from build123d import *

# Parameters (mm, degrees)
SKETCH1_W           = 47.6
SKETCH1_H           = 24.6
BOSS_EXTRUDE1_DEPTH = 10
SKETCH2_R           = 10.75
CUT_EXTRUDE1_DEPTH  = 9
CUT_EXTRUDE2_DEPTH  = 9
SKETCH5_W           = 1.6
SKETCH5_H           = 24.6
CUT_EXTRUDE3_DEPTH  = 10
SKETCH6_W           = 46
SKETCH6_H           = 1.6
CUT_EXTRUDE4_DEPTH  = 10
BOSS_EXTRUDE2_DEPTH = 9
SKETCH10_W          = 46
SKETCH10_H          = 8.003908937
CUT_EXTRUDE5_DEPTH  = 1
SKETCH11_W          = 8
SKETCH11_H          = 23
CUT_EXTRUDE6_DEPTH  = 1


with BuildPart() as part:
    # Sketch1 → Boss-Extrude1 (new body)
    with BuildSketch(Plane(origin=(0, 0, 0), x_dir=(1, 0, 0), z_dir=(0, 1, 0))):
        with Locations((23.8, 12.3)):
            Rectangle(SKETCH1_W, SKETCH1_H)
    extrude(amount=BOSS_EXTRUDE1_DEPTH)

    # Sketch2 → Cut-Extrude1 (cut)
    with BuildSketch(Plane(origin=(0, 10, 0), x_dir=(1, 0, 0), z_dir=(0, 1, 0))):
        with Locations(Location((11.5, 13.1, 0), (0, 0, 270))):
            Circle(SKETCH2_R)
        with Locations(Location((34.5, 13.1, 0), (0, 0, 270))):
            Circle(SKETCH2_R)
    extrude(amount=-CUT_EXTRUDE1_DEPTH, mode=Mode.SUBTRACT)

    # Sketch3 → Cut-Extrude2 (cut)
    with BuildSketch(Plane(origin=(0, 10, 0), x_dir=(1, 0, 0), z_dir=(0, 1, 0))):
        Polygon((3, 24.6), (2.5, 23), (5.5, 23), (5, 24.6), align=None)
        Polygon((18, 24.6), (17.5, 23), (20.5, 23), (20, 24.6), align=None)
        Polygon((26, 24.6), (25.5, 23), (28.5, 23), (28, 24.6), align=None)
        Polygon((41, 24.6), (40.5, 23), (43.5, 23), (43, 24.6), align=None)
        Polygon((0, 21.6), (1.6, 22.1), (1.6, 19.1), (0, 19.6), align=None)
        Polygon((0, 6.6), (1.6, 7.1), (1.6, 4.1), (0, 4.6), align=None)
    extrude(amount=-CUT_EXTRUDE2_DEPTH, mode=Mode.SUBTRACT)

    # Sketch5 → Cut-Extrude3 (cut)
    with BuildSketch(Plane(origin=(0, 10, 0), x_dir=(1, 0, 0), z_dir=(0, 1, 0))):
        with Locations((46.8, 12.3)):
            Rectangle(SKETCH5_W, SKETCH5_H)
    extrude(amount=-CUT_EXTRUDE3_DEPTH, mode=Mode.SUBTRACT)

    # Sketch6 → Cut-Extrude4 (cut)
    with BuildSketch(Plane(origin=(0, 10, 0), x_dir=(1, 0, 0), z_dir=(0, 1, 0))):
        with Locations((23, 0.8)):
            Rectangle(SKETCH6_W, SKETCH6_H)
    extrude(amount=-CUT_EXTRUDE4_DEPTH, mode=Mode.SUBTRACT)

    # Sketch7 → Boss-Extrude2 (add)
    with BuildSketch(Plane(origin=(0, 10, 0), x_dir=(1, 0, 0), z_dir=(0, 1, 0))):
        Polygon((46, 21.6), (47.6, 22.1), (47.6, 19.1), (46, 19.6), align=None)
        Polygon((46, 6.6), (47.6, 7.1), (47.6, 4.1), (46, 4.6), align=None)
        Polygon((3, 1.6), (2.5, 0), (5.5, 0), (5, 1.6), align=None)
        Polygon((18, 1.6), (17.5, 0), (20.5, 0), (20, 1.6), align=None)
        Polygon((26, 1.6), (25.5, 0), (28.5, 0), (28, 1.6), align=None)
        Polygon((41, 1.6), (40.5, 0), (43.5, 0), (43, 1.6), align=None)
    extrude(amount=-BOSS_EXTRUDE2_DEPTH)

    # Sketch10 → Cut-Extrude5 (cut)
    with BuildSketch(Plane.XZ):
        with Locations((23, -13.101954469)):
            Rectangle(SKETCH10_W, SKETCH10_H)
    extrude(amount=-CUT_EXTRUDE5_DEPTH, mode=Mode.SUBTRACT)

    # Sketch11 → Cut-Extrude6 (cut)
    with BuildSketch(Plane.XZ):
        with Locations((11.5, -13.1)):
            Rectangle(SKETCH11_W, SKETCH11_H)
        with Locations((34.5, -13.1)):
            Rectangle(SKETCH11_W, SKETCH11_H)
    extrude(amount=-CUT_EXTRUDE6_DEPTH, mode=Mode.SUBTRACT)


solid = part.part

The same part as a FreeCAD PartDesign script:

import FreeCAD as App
import Part
import Sketcher

V = App.Vector
Q = App.Units.Quantity

doc = App.newDocument("Part")
body = doc.addObject("PartDesign::Body", "Body")

# Sketch on XZ plane
sketch1 = body.newObject("Sketcher::SketchObject", "Sketch")
sketch1.AttachmentSupport = (doc.getObject("XZ_Plane"), [""])
sketch1.MapMode = "FlatFace"
sketch1.addGeometry([
    Part.LineSegment(V(0, -25, 0), V(0, 0, 0)),
    Part.LineSegment(V(0, 0, 0), V(48, 0, 0)),
    Part.LineSegment(V(48, 0, 0), V(48, -25, 0)),
    Part.LineSegment(V(48, -25, 0), V(0, -25, 0)),
], False)
sketch1.addConstraint([
    Sketcher.Constraint("Coincident", 0, 2, 1, 1),
    Sketcher.Constraint("Coincident", 1, 2, 2, 1),
    Sketcher.Constraint("Coincident", 2, 2, 3, 1),
    Sketcher.Constraint("Coincident", 3, 2, 0, 1),
    Sketcher.Constraint("Vertical", 0),
    Sketcher.Constraint("Horizontal", 1),
    Sketcher.Constraint("Vertical", 2),
    Sketcher.Constraint("Horizontal", 3),
    Sketcher.Constraint("Coincident", 0, 2, -1, 1),
    Sketcher.Constraint("DistanceX", 1, 1, 1, 2, Q("47.6 mm")),
    Sketcher.Constraint("DistanceY", 0, 1, 0, 2, Q("24.6 mm")),
])
pad1 = body.newObject("PartDesign::Pad", "Pad")
pad1.Profile = sketch1
pad1.Length = 10
pad1.Reversed = True

# Sketch on XZ plane
sketch2 = body.newObject("Sketcher::SketchObject", "Sketch001")
sketch2.AttachmentSupport = (doc.getObject("XZ_Plane"), [""])
sketch2.MapMode = "FlatFace"
sketch2.AttachmentOffset = App.Placement(V(0, 0, -10), App.Rotation())
sketch2.addGeometry([
    Part.Circle(V(12, -13, 0), V(0, 0, 1), 11),
    Part.Circle(V(34, -13, 0), V(0, 0, 1), 11),
], False)
sketch2.addConstraint([
    Sketcher.Constraint("Equal", 0, 1),
    Sketcher.Constraint("Horizontal", 0, 3, 1, 3),
    Sketcher.Constraint("Diameter", 0, Q("21.5 mm")),
    Sketcher.Constraint("DistanceX", 0, 3, 1, 3, Q("23 mm")),
    Sketcher.Constraint("DistanceX", -1, 1, 0, 3, Q("11.5 mm")),
    Sketcher.Constraint("DistanceY", 0, 3, -1, 1, Q("13.1 mm")),
])
pocket1 = body.newObject("PartDesign::Pocket", "Pocket")
pocket1.Profile = sketch2
pocket1.Length = 9
pocket1.Reversed = True

# Sketch on XZ plane
sketch3 = body.newObject("Sketcher::SketchObject", "Sketch002")
sketch3.AttachmentSupport = (doc.getObject("XZ_Plane"), [""])
sketch3.MapMode = "FlatFace"
sketch3.AttachmentOffset = App.Placement(V(0, 0, -10), App.Rotation())
sketch3.addGeometry([
    Part.LineSegment(V(3, -24.6, 0), V(2.5, -23, 0)),  # 0
    Part.LineSegment(V(2.5, -23, 0), V(5.5, -23, 0)),  # 1
    Part.LineSegment(V(5.5, -23, 0), V(5, -24.6, 0)),  # 2
    Part.LineSegment(V(5, -24.6, 0), V(3, -24.6, 0)),  # 3
    Part.LineSegment(V(18, -24.6, 0), V(17.5, -23, 0)),  # 4
    Part.LineSegment(V(17.5, -23, 0), V(20.5, -23, 0)),  # 5
    Part.LineSegment(V(20.5, -23, 0), V(20, -24.6, 0)),  # 6
    Part.LineSegment(V(20, -24.6, 0), V(18, -24.6, 0)),  # 7
    Part.LineSegment(V(26, -24.6, 0), V(25.5, -23, 0)),  # 8
    Part.LineSegment(V(25.5, -23, 0), V(28.5, -23, 0)),  # 9
    Part.LineSegment(V(28.5, -23, 0), V(28, -24.6, 0)),  # 10
    Part.LineSegment(V(28, -24.6, 0), V(26, -24.6, 0)),  # 11
    Part.LineSegment(V(41, -24.6, 0), V(40.5, -23, 0)),  # 12
    Part.LineSegment(V(40.5, -23, 0), V(43.5, -23, 0)),  # 13
    Part.LineSegment(V(43.5, -23, 0), V(43, -24.6, 0)),  # 14
    Part.LineSegment(V(43, -24.6, 0), V(41, -24.6, 0)),  # 15
    Part.LineSegment(V(1.6, -22.1, 0), V(0, -21.6, 0)),  # 16
    Part.LineSegment(V(0, -21.6, 0), V(0, -19.6, 0)),  # 17
    Part.LineSegment(V(0, -19.6, 0), V(1.6, -19.1, 0)),  # 18
    Part.LineSegment(V(1.6, -19.1, 0), V(1.6, -22.1, 0)),  # 19
    Part.LineSegment(V(1.6, -7.1, 0), V(0, -6.6, 0)),  # 20
    Part.LineSegment(V(0, -6.6, 0), V(0, -4.6, 0)),  # 21
    Part.LineSegment(V(0, -4.6, 0), V(1.6, -4.1, 0)),  # 22
    Part.LineSegment(V(1.6, -4.1, 0), V(1.6, -7.1, 0)),  # 23
], False)
sketch3.addConstraint([
    Sketcher.Constraint("Coincident", 0, 2, 1, 1),
    Sketcher.Constraint("Coincident", 1, 2, 2, 1),
    Sketcher.Constraint("Coincident", 2, 2, 3, 1),
    Sketcher.Constraint("Coincident", 3, 2, 0, 1),
    Sketcher.Constraint("Coincident", 4, 2, 5, 1),
    Sketcher.Constraint("Coincident", 5, 2, 6, 1),
    Sketcher.Constraint("Coincident", 6, 2, 7, 1),
    Sketcher.Constraint("Coincident", 7, 2, 4, 1),
    Sketcher.Constraint("Coincident", 8, 2, 9, 1),
    Sketcher.Constraint("Coincident", 9, 2, 10, 1),
    Sketcher.Constraint("Coincident", 10, 2, 11, 1),
    Sketcher.Constraint("Coincident", 11, 2, 8, 1),
    Sketcher.Constraint("Coincident", 12, 2, 13, 1),
    Sketcher.Constraint("Coincident", 13, 2, 14, 1),
    Sketcher.Constraint("Coincident", 14, 2, 15, 1),
    Sketcher.Constraint("Coincident", 15, 2, 12, 1),
    Sketcher.Constraint("Coincident", 16, 2, 17, 1),
    Sketcher.Constraint("Coincident", 17, 2, 18, 1),
    Sketcher.Constraint("Coincident", 18, 2, 19, 1),
    Sketcher.Constraint("Coincident", 19, 2, 16, 1),
    Sketcher.Constraint("Coincident", 20, 2, 21, 1),
    Sketcher.Constraint("Coincident", 21, 2, 22, 1),
    Sketcher.Constraint("Coincident", 22, 2, 23, 1),
    Sketcher.Constraint("Coincident", 23, 2, 20, 1),
    Sketcher.Constraint("Horizontal", 1),
    Sketcher.Constraint("Horizontal", 3),
    Sketcher.Constraint("Horizontal", 5),
    Sketcher.Constraint("Horizontal", 7),
    Sketcher.Constraint("Horizontal", 9),
    Sketcher.Constraint("Horizontal", 11),
    Sketcher.Constraint("Horizontal", 13),
    Sketcher.Constraint("Horizontal", 15),
    Sketcher.Constraint("Vertical", 17),
    Sketcher.Constraint("Vertical", 19),
    Sketcher.Constraint("Vertical", 21),
    Sketcher.Constraint("Vertical", 23),
    Sketcher.Constraint("PointOnObject", 16, 2, -2),
    Sketcher.Constraint("PointOnObject", 20, 2, -2),
    Sketcher.Constraint("Parallel", 0, 4),
    Sketcher.Constraint("Parallel", 2, 6),
    Sketcher.Constraint("Parallel", 4, 8),
    Sketcher.Constraint("Parallel", 6, 10),
    Sketcher.Constraint("Parallel", 8, 12),
    Sketcher.Constraint("Parallel", 10, 14),
    Sketcher.Constraint("Perpendicular", 14, 16),
    Sketcher.Constraint("Perpendicular", 12, 18),
    Sketcher.Constraint("Parallel", 16, 20),
    Sketcher.Constraint("Parallel", 18, 22),
    Sketcher.Constraint("Horizontal", 1, 2, 4, 2),
    Sketcher.Constraint("Horizontal", 3, 2, 6, 2),
    Sketcher.Constraint("Horizontal", 5, 2, 8, 2),
    Sketcher.Constraint("Horizontal", 7, 2, 10, 2),
    Sketcher.Constraint("Horizontal", 9, 2, 12, 2),
    Sketcher.Constraint("Horizontal", 11, 2, 14, 2),
    Sketcher.Constraint("Vertical", 19, 2, 22, 2),
    Sketcher.Constraint("Equal", 1, 5),
    Sketcher.Constraint("Equal", 5, 9),
    Sketcher.Constraint("Equal", 9, 13),
    Sketcher.Constraint("Equal", 15, 17),
    Sketcher.Constraint("Equal", 13, 19),
    Sketcher.Constraint("Equal", 17, 21),
    Sketcher.Constraint("Equal", 0, 2),
    Sketcher.Constraint("DistanceX", 1, 1, 1, 2, Q("3 mm")),
    Sketcher.Constraint("DistanceX", 3, 2, 3, 1, Q("2 mm")),
    Sketcher.Constraint("DistanceY", 0, 2, -1, 1, Q("23 mm")),
    Sketcher.Constraint("DistanceX", -1, 1, 2, 2, Q("5 mm")),
    Sketcher.Constraint("DistanceX", -1, 1, 6, 2, Q("20 mm")),
    Sketcher.Constraint("DistanceX", -1, 1, 10, 2, Q("28 mm")),
    Sketcher.Constraint("DistanceX", -1, 1, 14, 2, Q("43 mm")),
    Sketcher.Constraint("DistanceY", 3, 2, 16, 2, Q("3 mm")),
    Sketcher.Constraint("DistanceY", 17, 2, 20, 2, Q("13 mm")),
    Sketcher.Constraint("DistanceY", 2, 2, -1, 1, Q("24.6 mm")),
])
pocket2 = body.newObject("PartDesign::Pocket", "Pocket001")
pocket2.Profile = sketch3
pocket2.Length = 9
pocket2.Reversed = True

# Sketch on XZ plane
sketch4 = body.newObject("Sketcher::SketchObject", "Sketch003")
sketch4.AttachmentSupport = (doc.getObject("XZ_Plane"), [""])
sketch4.MapMode = "FlatFace"
sketch4.AttachmentOffset = App.Placement(V(0, 0, -10), App.Rotation())
sketch4.addGeometry([
    Part.LineSegment(V(46, -24.6, 0), V(46, 0, 0)),
    Part.LineSegment(V(46, 0, 0), V(47.6, 0, 0)),
    Part.LineSegment(V(47.6, 0, 0), V(47.6, -24.6, 0)),
    Part.LineSegment(V(47.6, -24.6, 0), V(46, -24.6, 0)),
], False)
sketch4.addConstraint([
    Sketcher.Constraint("Coincident", 0, 2, 1, 1),
    Sketcher.Constraint("Coincident", 1, 2, 2, 1),
    Sketcher.Constraint("Coincident", 2, 2, 3, 1),
    Sketcher.Constraint("Coincident", 3, 2, 0, 1),
    Sketcher.Constraint("Vertical", 0),
    Sketcher.Constraint("Horizontal", 1),
    Sketcher.Constraint("Vertical", 2),
    Sketcher.Constraint("Horizontal", 3),
    Sketcher.Constraint("PointOnObject", 0, 2, -1),
    Sketcher.Constraint("DistanceX", 1, 1, 1, 2, Q("1.6 mm")),
    Sketcher.Constraint("DistanceY", 0, 1, 0, 2, Q("24.6 mm")),
    Sketcher.Constraint("DistanceX", -1, 1, 0, 2, Q("46 mm")),
])
pocket3 = body.newObject("PartDesign::Pocket", "Pocket002")
pocket3.Profile = sketch4
pocket3.Length = 10
pocket3.Reversed = True

# Sketch on XZ plane
sketch5 = body.newObject("Sketcher::SketchObject", "Sketch004")
sketch5.AttachmentSupport = (doc.getObject("XZ_Plane"), [""])
sketch5.MapMode = "FlatFace"
sketch5.AttachmentOffset = App.Placement(V(0, 0, -10), App.Rotation())
sketch5.addGeometry([
    Part.LineSegment(V(0, -1.6, 0), V(0, 0, 0)),
    Part.LineSegment(V(0, 0, 0), V(46, 0, 0)),
    Part.LineSegment(V(46, 0, 0), V(46, -1.6, 0)),
    Part.LineSegment(V(46, -1.6, 0), V(0, -1.6, 0)),
], False)
sketch5.addConstraint([
    Sketcher.Constraint("Coincident", 0, 2, 1, 1),
    Sketcher.Constraint("Coincident", 1, 2, 2, 1),
    Sketcher.Constraint("Coincident", 2, 2, 3, 1),
    Sketcher.Constraint("Coincident", 3, 2, 0, 1),
    Sketcher.Constraint("Vertical", 0),
    Sketcher.Constraint("Horizontal", 1),
    Sketcher.Constraint("Vertical", 2),
    Sketcher.Constraint("Horizontal", 3),
    Sketcher.Constraint("Coincident", 0, 2, -1, 1),
    Sketcher.Constraint("DistanceX", 1, 1, 1, 2, Q("46 mm")),
    Sketcher.Constraint("DistanceY", 0, 1, 0, 2, Q("1.6 mm")),
])
pocket4 = body.newObject("PartDesign::Pocket", "Pocket003")
pocket4.Profile = sketch5
pocket4.Length = 10
pocket4.Reversed = True

# Sketch on XZ plane
sketch6 = body.newObject("Sketcher::SketchObject", "Sketch005")
sketch6.AttachmentSupport = (doc.getObject("XZ_Plane"), [""])
sketch6.MapMode = "FlatFace"
sketch6.AttachmentOffset = App.Placement(V(0, 0, -10), App.Rotation())
sketch6.addGeometry([
    Part.LineSegment(V(47.6, -22.1, 0), V(46, -21.6, 0)),  # 0
    Part.LineSegment(V(46, -21.6, 0), V(46, -19.6, 0)),  # 1
    Part.LineSegment(V(46, -19.6, 0), V(47.6, -19.1, 0)),  # 2
    Part.LineSegment(V(47.6, -19.1, 0), V(47.6, -22.1, 0)),  # 3
    Part.LineSegment(V(47.6, -7.1, 0), V(46, -6.6, 0)),  # 4
    Part.LineSegment(V(46, -6.6, 0), V(46, -4.6, 0)),  # 5
    Part.LineSegment(V(46, -4.6, 0), V(47.6, -4.1, 0)),  # 6
    Part.LineSegment(V(47.6, -4.1, 0), V(47.6, -7.1, 0)),  # 7
    Part.LineSegment(V(3, -1.6, 0), V(2.5, 0, 0)),  # 8
    Part.LineSegment(V(2.5, 0, 0), V(5.5, 0, 0)),  # 9
    Part.LineSegment(V(5.5, 0, 0), V(5, -1.6, 0)),  # 10
    Part.LineSegment(V(5, -1.6, 0), V(3, -1.6, 0)),  # 11
    Part.LineSegment(V(18, -1.6, 0), V(17.5, 0, 0)),  # 12
    Part.LineSegment(V(17.5, 0, 0), V(20.5, 0, 0)),  # 13
    Part.LineSegment(V(20.5, 0, 0), V(20, -1.6, 0)),  # 14
    Part.LineSegment(V(20, -1.6, 0), V(18, -1.6, 0)),  # 15
    Part.LineSegment(V(26, -1.6, 0), V(25.5, 0, 0)),  # 16
    Part.LineSegment(V(25.5, 0, 0), V(28.5, 0, 0)),  # 17
    Part.LineSegment(V(28.5, 0, 0), V(28, -1.6, 0)),  # 18
    Part.LineSegment(V(28, -1.6, 0), V(26, -1.6, 0)),  # 19
    Part.LineSegment(V(41, -1.6, 0), V(40.5, 0, 0)),  # 20
    Part.LineSegment(V(40.5, 0, 0), V(43.5, 0, 0)),  # 21
    Part.LineSegment(V(43.5, 0, 0), V(43, -1.6, 0)),  # 22
    Part.LineSegment(V(43, -1.6, 0), V(41, -1.6, 0)),  # 23
], False)
sketch6.addConstraint([
    Sketcher.Constraint("Coincident", 0, 2, 1, 1),
    Sketcher.Constraint("Coincident", 1, 2, 2, 1),
    Sketcher.Constraint("Coincident", 2, 2, 3, 1),
    Sketcher.Constraint("Coincident", 3, 2, 0, 1),
    Sketcher.Constraint("Coincident", 4, 2, 5, 1),
    Sketcher.Constraint("Coincident", 5, 2, 6, 1),
    Sketcher.Constraint("Coincident", 6, 2, 7, 1),
    Sketcher.Constraint("Coincident", 7, 2, 4, 1),
    Sketcher.Constraint("Coincident", 8, 2, 9, 1),
    Sketcher.Constraint("Coincident", 9, 2, 10, 1),
    Sketcher.Constraint("Coincident", 10, 2, 11, 1),
    Sketcher.Constraint("Coincident", 11, 2, 8, 1),
    Sketcher.Constraint("Coincident", 12, 2, 13, 1),
    Sketcher.Constraint("Coincident", 13, 2, 14, 1),
    Sketcher.Constraint("Coincident", 14, 2, 15, 1),
    Sketcher.Constraint("Coincident", 15, 2, 12, 1),
    Sketcher.Constraint("Coincident", 16, 2, 17, 1),
    Sketcher.Constraint("Coincident", 17, 2, 18, 1),
    Sketcher.Constraint("Coincident", 18, 2, 19, 1),
    Sketcher.Constraint("Coincident", 19, 2, 16, 1),
    Sketcher.Constraint("Coincident", 20, 2, 21, 1),
    Sketcher.Constraint("Coincident", 21, 2, 22, 1),
    Sketcher.Constraint("Coincident", 22, 2, 23, 1),
    Sketcher.Constraint("Coincident", 23, 2, 20, 1),
    Sketcher.Constraint("Vertical", 1),
    Sketcher.Constraint("Vertical", 3),
    Sketcher.Constraint("Vertical", 5),
    Sketcher.Constraint("Vertical", 7),
    Sketcher.Constraint("Horizontal", 9),
    Sketcher.Constraint("Horizontal", 11),
    Sketcher.Constraint("Horizontal", 13),
    Sketcher.Constraint("Horizontal", 15),
    Sketcher.Constraint("Horizontal", 17),
    Sketcher.Constraint("Horizontal", 19),
    Sketcher.Constraint("Horizontal", 21),
    Sketcher.Constraint("Horizontal", 23),
    Sketcher.Constraint("PointOnObject", 8, 2, -1),
    Sketcher.Constraint("PointOnObject", 12, 2, -1),
    Sketcher.Constraint("PointOnObject", 16, 2, -1),
    Sketcher.Constraint("PointOnObject", 20, 2, -1),
    Sketcher.Constraint("Parallel", 0, 4),
    Sketcher.Constraint("Parallel", 2, 6),
    Sketcher.Constraint("Perpendicular", 6, 8),
    Sketcher.Constraint("Perpendicular", 4, 10),
    Sketcher.Constraint("Parallel", 8, 12),
    Sketcher.Constraint("Parallel", 10, 14),
    Sketcher.Constraint("Parallel", 12, 16),
    Sketcher.Constraint("Parallel", 14, 18),
    Sketcher.Constraint("Parallel", 16, 20),
    Sketcher.Constraint("Parallel", 18, 22),
    Sketcher.Constraint("Horizontal", 11, 2, 14, 2),
    Sketcher.Constraint("Horizontal", 15, 2, 18, 2),
    Sketcher.Constraint("Horizontal", 19, 2, 22, 2),
    Sketcher.Constraint("Vertical", 1, 2, 4, 2),
    Sketcher.Constraint("Vertical", 3, 2, 6, 2),
    Sketcher.Constraint("Equal", 9, 13),
    Sketcher.Constraint("Equal", 13, 17),
    Sketcher.Constraint("Equal", 17, 21),
    Sketcher.Constraint("Equal", 23, 1),
    Sketcher.Constraint("Equal", 21, 3),
    Sketcher.Constraint("Equal", 1, 5),
    Sketcher.Constraint("Equal", 0, 2),
    Sketcher.Constraint("DistanceX", 9, 1, 9, 2, Q("3 mm")),
    Sketcher.Constraint("DistanceX", 11, 2, 11, 1, Q("2 mm")),
    Sketcher.Constraint("DistanceX", -1, 1, 0, 2, Q("46 mm")),
    Sketcher.Constraint("DistanceX", -1, 1, 10, 2, Q("5 mm")),
    Sketcher.Constraint("DistanceX", -1, 1, 14, 2, Q("20 mm")),
    Sketcher.Constraint("DistanceX", -1, 1, 18, 2, Q("28 mm")),
    Sketcher.Constraint("DistanceX", -1, 1, 22, 2, Q("43 mm")),
    Sketcher.Constraint("DistanceY", 1, 2, 4, 2, Q("13 mm")),
    Sketcher.Constraint("DistanceY", 5, 2, 10, 2, Q("3 mm")),
    Sketcher.Constraint("DistanceY", 0, 2, -1, 1, Q("21.6 mm")),
])
pad2 = body.newObject("PartDesign::Pad", "Pad001")
pad2.Profile = sketch6
pad2.Length = 9

# Sketch on XZ plane
sketch7 = body.newObject("Sketcher::SketchObject", "Sketch006")
sketch7.AttachmentSupport = (doc.getObject("XZ_Plane"), [""])
sketch7.MapMode = "FlatFace"
sketch7.addGeometry([
    Part.LineSegment(V(0, -9, 0), V(0, -17, 0)),
    Part.LineSegment(V(0, -17, 0), V(46, -17, 0)),
    Part.LineSegment(V(46, -17, 0), V(46, -9, 0)),
    Part.LineSegment(V(46, -9, 0), V(0, -9, 0)),
], False)
sketch7.addConstraint([
    Sketcher.Constraint("Coincident", 0, 2, 1, 1),
    Sketcher.Constraint("Coincident", 1, 2, 2, 1),
    Sketcher.Constraint("Coincident", 2, 2, 3, 1),
    Sketcher.Constraint("Coincident", 3, 2, 0, 1),
    Sketcher.Constraint("Vertical", 0),
    Sketcher.Constraint("Horizontal", 1),
    Sketcher.Constraint("Vertical", 2),
    Sketcher.Constraint("Horizontal", 3),
    Sketcher.Constraint("PointOnObject", 0, 2, -2),
    Sketcher.Constraint("DistanceX", 1, 1, 1, 2, Q("46 mm")),
    Sketcher.Constraint("DistanceY", 2, 2, -1, 1, Q("9.1 mm")),
    Sketcher.Constraint("DistanceY", 0, 2, 0, 1, Q("8.003909 mm")),
])
pocket5 = body.newObject("PartDesign::Pocket", "Pocket004")
pocket5.Profile = sketch7
pocket5.Length = 1

# Sketch on XZ plane
sketch8 = body.newObject("Sketcher::SketchObject", "Sketch007")
sketch8.AttachmentSupport = (doc.getObject("XZ_Plane"), [""])
sketch8.MapMode = "FlatFace"
sketch8.addGeometry([
    Part.LineSegment(V(8, -2, 0), V(8, -25, 0)),  # 0
    Part.LineSegment(V(8, -25, 0), V(16, -25, 0)),  # 1
    Part.LineSegment(V(16, -25, 0), V(16, -2, 0)),  # 2
    Part.LineSegment(V(16, -2, 0), V(8, -2, 0)),  # 3
    Part.LineSegment(V(30, -2, 0), V(30, -25, 0)),  # 4
    Part.LineSegment(V(30, -25, 0), V(38, -25, 0)),  # 5
    Part.LineSegment(V(38, -25, 0), V(38, -2, 0)),  # 6
    Part.LineSegment(V(38, -2, 0), V(30, -2, 0)),  # 7
], False)
sketch8.addConstraint([
    Sketcher.Constraint("Coincident", 0, 2, 1, 1),
    Sketcher.Constraint("Coincident", 1, 2, 2, 1),
    Sketcher.Constraint("Coincident", 2, 2, 3, 1),
    Sketcher.Constraint("Coincident", 3, 2, 0, 1),
    Sketcher.Constraint("Coincident", 4, 2, 5, 1),
    Sketcher.Constraint("Coincident", 5, 2, 6, 1),
    Sketcher.Constraint("Coincident", 6, 2, 7, 1),
    Sketcher.Constraint("Coincident", 7, 2, 4, 1),
    Sketcher.Constraint("Vertical", 0),
    Sketcher.Constraint("Horizontal", 1),
    Sketcher.Constraint("Vertical", 2),
    Sketcher.Constraint("Horizontal", 3),
    Sketcher.Constraint("Vertical", 4),
    Sketcher.Constraint("Horizontal", 5),
    Sketcher.Constraint("Vertical", 6),
    Sketcher.Constraint("Horizontal", 7),
    Sketcher.Constraint("Horizontal", 1, 2, 4, 2),
    Sketcher.Constraint("Horizontal", 3, 2, 6, 2),
    Sketcher.Constraint("Equal", 3, 5),
    Sketcher.Constraint("DistanceX", 1, 1, 1, 2, Q("8 mm")),
    Sketcher.Constraint("DistanceY", 0, 2, 0, 1, Q("23 mm")),
    Sketcher.Constraint("DistanceX", 1, 2, 4, 2, Q("15 mm")),
    Sketcher.Constraint("DistanceX", -1, 1, 0, 2, Q("7.5 mm")),
    Sketcher.Constraint("DistanceY", 0, 2, -1, 1, Q("24.6 mm")),
])
pocket6 = body.newObject("PartDesign::Pocket", "Pocket005")
pocket6.Profile = sketch8
pocket6.Length = 1

doc.recompute()
